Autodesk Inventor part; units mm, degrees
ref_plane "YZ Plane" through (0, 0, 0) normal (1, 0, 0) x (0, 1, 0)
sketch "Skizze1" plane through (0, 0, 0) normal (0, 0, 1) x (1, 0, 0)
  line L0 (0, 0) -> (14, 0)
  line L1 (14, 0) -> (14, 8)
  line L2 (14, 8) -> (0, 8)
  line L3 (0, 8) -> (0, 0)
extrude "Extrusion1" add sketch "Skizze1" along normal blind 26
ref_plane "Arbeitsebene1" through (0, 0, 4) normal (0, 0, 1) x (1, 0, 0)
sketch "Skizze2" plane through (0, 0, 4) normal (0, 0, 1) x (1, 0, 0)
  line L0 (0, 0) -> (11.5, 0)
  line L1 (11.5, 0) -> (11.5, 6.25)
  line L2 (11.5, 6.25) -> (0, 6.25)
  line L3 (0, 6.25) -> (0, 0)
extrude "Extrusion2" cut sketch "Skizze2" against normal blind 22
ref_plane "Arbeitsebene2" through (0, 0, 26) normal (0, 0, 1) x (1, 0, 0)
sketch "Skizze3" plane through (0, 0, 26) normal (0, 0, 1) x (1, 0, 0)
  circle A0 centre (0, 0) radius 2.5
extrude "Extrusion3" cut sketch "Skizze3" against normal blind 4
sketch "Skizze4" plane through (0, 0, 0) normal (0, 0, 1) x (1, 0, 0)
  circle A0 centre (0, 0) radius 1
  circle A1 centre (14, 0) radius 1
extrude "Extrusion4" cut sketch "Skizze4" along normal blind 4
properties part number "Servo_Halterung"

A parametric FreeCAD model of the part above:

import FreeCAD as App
import Part
import Sketcher
from FreeCAD import Vector
Q = App.Units.Quantity


def add_polygon(sketch, points):
    """Adds a closed chain of lines whose ends are joined by coincident constraints."""
    first, n = sketch.GeometryCount, len(points)
    for a, b in zip(points, points[1:] + points[:1]):
        sketch.addGeometry(Part.LineSegment(App.Vector(*a, 0), App.Vector(*b, 0)), False)
    for i in range(n):
        sketch.addConstraint(Sketcher.Constraint("Coincident", first + i, 2, first + (i + 1) % n, 1))

doc = App.newDocument("Part")
params = doc.addObject("Spreadsheet::Sheet", "Params")
for row, (alias, value) in enumerate([
    ("sketch1_width", "14 mm"),
    ("sketch1_height", "8 mm"),
    ("pad1_length", "26 mm"),
    ("sketch2_width", "11.5 mm"),
    ("sketch2_height", "6.25 mm"),
    ("pocket1_length", "22 mm"),
    ("sketch3_diameter", "5 mm"),
    ("pocket2_length", "4 mm"),
    ("sketch4_diameter", "2 mm"),
    ("pocket3_length", "4 mm"),
], start=1):
    params.set(f"A{row}", alias)
    params.set(f"B{row}", "=" + value)
    params.setAlias(f"B{row}", alias)

body = doc.addObject("PartDesign::Body", "Body")

# Sketch on XY plane
sketch1 = body.newObject("Sketcher::SketchObject", "Sketch")
sketch1.AttachmentSupport = (doc.getObject("XY_Plane"), [""])
sketch1.MapMode = "FlatFace"
add_polygon(sketch1, [(0, 8), (0, 0), (14, 0), (14, 8)])  # lines 0-3
sketch1.addConstraint([
    Sketcher.Constraint("Vertical", 0),
    Sketcher.Constraint("Horizontal", 1),
    Sketcher.Constraint("Vertical", 2),
    Sketcher.Constraint("Horizontal", 3),
    Sketcher.Constraint("Coincident", 0, 2, -1, 1),
    Sketcher.Constraint("DistanceX", 1, 1, 1, 2, Q("14 mm")),
    Sketcher.Constraint("DistanceY", 0, 2, 0, 1, Q("8 mm")),
])
sketch1.setExpression("Constraints[9]", "Params.sketch1_width")
sketch1.setExpression("Constraints[10]", "Params.sketch1_height")
pad1 = body.newObject("PartDesign::Pad", "Pad")
pad1.Profile = sketch1
pad1.setExpression("Length", "Params.pad1_length")

# Sketch on XY plane
sketch2 = body.newObject("Sketcher::SketchObject", "Sketch001")
sketch2.AttachmentSupport = (doc.getObject("XY_Plane"), [""])
sketch2.MapMode = "FlatFace"
sketch2.AttachmentOffset = App.Placement(Vector(0, 0, 4), App.Rotation())
add_polygon(sketch2, [(0, 6), (0, 0), (12, 0), (12, 6)])  # lines 0-3
sketch2.addConstraint([
    Sketcher.Constraint("Vertical", 0),
    Sketcher.Constraint("Horizontal", 1),
    Sketcher.Constraint("Vertical", 2),
    Sketcher.Constraint("Horizontal", 3),
    Sketcher.Constraint("Coincident", 0, 2, -1, 1),
    Sketcher.Constraint("DistanceX", 1, 1, 1, 2, Q("11.5 mm")),
    Sketcher.Constraint("DistanceY", 0, 2, 0, 1, Q("6.25 mm")),
])
sketch2.setExpression("Constraints[9]", "Params.sketch2_width")
sketch2.setExpression("Constraints[10]", "Params.sketch2_height")
pocket1 = body.newObject("PartDesign::Pocket", "Pocket")
pocket1.Profile = sketch2
pocket1.setExpression("Length", "Params.pocket1_length")

# Sketch on XY plane
sketch3 = body.newObject("Sketcher::SketchObject", "Sketch002")
sketch3.AttachmentSupport = (doc.getObject("XY_Plane"), [""])
sketch3.MapMode = "FlatFace"
sketch3.AttachmentOffset = App.Placement(Vector(0, 0, 26), App.Rotation())
sketch3.addGeometry(Part.Circle(Vector(0, 0, 0), Vector(0, 0, 1), 2.5), False)
sketch3.addConstraint([
    Sketcher.Constraint("Coincident", 0, 3, -1, 1),
    Sketcher.Constraint("Diameter", 0, Q("5 mm")),
])
sketch3.setExpression("Constraints[1]", "Params.sketch3_diameter")
pocket2 = body.newObject("PartDesign::Pocket", "Pocket001")
pocket2.Profile = sketch3
pocket2.setExpression("Length", "Params.pocket2_length")

# Sketch on XY plane
sketch4 = body.newObject("Sketcher::SketchObject", "Sketch003")
sketch4.AttachmentSupport = (doc.getObject("XY_Plane"), [""])
sketch4.MapMode = "FlatFace"
sketch4.addGeometry([
    Part.Circle(Vector(0, 0, 0), Vector(0, 0, 1), 1),
    Part.Circle(Vector(14, 0, 0), Vector(0, 0, 1), 1),
], False)
sketch4.addConstraint([
    Sketcher.Constraint("Coincident", 0, 3, -1, 1),
    Sketcher.Constraint("Equal", 0, 1),
    Sketcher.Constraint("PointOnObject", 1, 3, -1),
    Sketcher.Constraint("Diameter", 0, Q("2 mm")),
    Sketcher.Constraint("DistanceX", -1, 1, 1, 3, Q("14 mm")),
])
sketch4.setExpression("Constraints[3]", "Params.sketch4_diameter")
pocket3 = body.newObject("PartDesign::Pocket", "Pocket002")
pocket3.Profile = sketch4
pocket3.setExpression("Length", "Params.pocket3_length")
pocket3.Reversed = True

doc.recompute()
